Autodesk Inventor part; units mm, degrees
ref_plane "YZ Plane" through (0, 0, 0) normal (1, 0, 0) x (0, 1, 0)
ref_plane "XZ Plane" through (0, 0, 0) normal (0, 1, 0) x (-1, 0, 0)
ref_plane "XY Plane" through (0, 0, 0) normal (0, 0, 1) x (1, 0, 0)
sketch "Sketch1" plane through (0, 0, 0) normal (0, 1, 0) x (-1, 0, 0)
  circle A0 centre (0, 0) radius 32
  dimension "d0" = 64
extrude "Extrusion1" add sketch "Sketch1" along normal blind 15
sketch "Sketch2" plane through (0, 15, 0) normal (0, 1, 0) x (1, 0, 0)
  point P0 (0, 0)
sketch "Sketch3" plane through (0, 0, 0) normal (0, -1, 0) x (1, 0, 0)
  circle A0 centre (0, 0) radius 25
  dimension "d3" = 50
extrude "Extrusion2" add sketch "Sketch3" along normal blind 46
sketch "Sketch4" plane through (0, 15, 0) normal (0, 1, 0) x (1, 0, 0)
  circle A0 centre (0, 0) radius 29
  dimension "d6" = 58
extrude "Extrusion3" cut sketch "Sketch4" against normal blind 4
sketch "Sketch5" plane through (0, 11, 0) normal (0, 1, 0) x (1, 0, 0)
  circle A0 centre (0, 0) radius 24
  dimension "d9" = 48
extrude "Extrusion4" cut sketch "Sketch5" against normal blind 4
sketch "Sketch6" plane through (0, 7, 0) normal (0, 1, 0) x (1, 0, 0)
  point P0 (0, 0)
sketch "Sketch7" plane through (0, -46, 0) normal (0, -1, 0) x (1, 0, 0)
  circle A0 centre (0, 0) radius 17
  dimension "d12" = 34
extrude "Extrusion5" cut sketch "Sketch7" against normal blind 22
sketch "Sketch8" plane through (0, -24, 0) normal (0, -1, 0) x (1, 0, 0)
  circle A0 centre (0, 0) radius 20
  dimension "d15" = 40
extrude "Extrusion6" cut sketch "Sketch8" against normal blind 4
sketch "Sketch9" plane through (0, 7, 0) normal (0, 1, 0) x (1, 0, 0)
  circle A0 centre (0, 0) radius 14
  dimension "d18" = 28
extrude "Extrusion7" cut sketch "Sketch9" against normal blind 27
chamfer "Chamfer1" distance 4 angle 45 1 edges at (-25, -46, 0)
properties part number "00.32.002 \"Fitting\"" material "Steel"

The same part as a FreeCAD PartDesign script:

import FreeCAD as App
import Part
import Sketcher


def edges_at(feature, points):
    """Names of the edges that pass closest to the given points."""
    edges = feature.Shape.Edges
    near = lambda p: min(range(len(edges)), key=lambda i: edges[i].distToShape(Part.Vertex(*p))[0])
    return sorted({f"Edge{near(p) + 1}" for p in points})

doc = App.newDocument("Part")
body = doc.addObject("PartDesign::Body", "Body")

sketch1 = body.newObject("Sketcher::SketchObject", "Sketch")
sketch1.AttachmentSupport = (doc.getObject("XZ_Plane"), [""])
sketch1.MapMode = "FlatFace"
sketch1.addGeometry(Part.Circle(App.Vector(0, 0, 0), App.Vector(0, 0, 1), 32), False)
sketch1.addConstraint([
    Sketcher.Constraint("Coincident", 0, 3, -1, 1),
    Sketcher.Constraint("Diameter", 0, 64.0),
])
pad1 = body.newObject("PartDesign::Pad", "Pad")
pad1.Profile = sketch1
pad1.Length = 15
pad1.Reversed = True

sketch2 = body.newObject("Sketcher::SketchObject", "Sketch001")
sketch2.AttachmentSupport = (doc.getObject("XZ_Plane"), [""])
sketch2.MapMode = "FlatFace"
sketch2.addGeometry(Part.Circle(App.Vector(0, 0, 0), App.Vector(0, 0, 1), 25), False)
sketch2.addConstraint([
    Sketcher.Constraint("Coincident", 0, 3, -1, 1),
    Sketcher.Constraint("Diameter", 0, 50.0),
])
pad2 = body.newObject("PartDesign::Pad", "Pad001")
pad2.Profile = sketch2
pad2.Length = 46

sketch3 = body.newObject("Sketcher::SketchObject", "Sketch002")
sketch3.AttachmentSupport = (doc.getObject("XZ_Plane"), [""])
sketch3.MapMode = "FlatFace"
sketch3.AttachmentOffset = App.Placement(App.Vector(0, 0, -15), App.Rotation())
sketch3.addGeometry(Part.Circle(App.Vector(0, 0, 0), App.Vector(0, 0, 1), 29), False)
sketch3.addConstraint([
    Sketcher.Constraint("Coincident", 0, 3, -1, 1),
    Sketcher.Constraint("Diameter", 0, 58.0),
])
pocket1 = body.newObject("PartDesign::Pocket", "Pocket")
pocket1.Profile = sketch3
pocket1.Length = 4
pocket1.Reversed = True

sketch4 = body.newObject("Sketcher::SketchObject", "Sketch003")
sketch4.AttachmentSupport = (doc.getObject("XZ_Plane"), [""])
sketch4.MapMode = "FlatFace"
sketch4.AttachmentOffset = App.Placement(App.Vector(0, 0, -11), App.Rotation())
sketch4.addGeometry(Part.Circle(App.Vector(0, 0, 0), App.Vector(0, 0, 1), 24), False)
sketch4.addConstraint([
    Sketcher.Constraint("Coincident", 0, 3, -1, 1),
    Sketcher.Constraint("Diameter", 0, 48.0),
])
pocket2 = body.newObject("PartDesign::Pocket", "Pocket001")
pocket2.Profile = sketch4
pocket2.Length = 4
pocket2.Reversed = True

sketch5 = body.newObject("Sketcher::SketchObject", "Sketch004")
sketch5.AttachmentSupport = (doc.getObject("XZ_Plane"), [""])
sketch5.MapMode = "FlatFace"
sketch5.AttachmentOffset = App.Placement(App.Vector(0, 0, 46), App.Rotation())
sketch5.addGeometry(Part.Circle(App.Vector(0, 0, 0), App.Vector(0, 0, 1), 17), False)
sketch5.addConstraint([
    Sketcher.Constraint("Coincident", 0, 3, -1, 1),
    Sketcher.Constraint("Diameter", 0, 34.0),
])
pocket3 = body.newObject("PartDesign::Pocket", "Pocket002")
pocket3.Profile = sketch5
pocket3.Length = 22

sketch6 = body.newObject("Sketcher::SketchObject", "Sketch005")
sketch6.AttachmentSupport = (doc.getObject("XZ_Plane"), [""])
sketch6.MapMode = "FlatFace"
sketch6.AttachmentOffset = App.Placement(App.Vector(0, 0, 24), App.Rotation())
sketch6.addGeometry(Part.Circle(App.Vector(0, 0, 0), App.Vector(0, 0, 1), 20), False)
sketch6.addConstraint([
    Sketcher.Constraint("Coincident", 0, 3, -1, 1),
    Sketcher.Constraint("Diameter", 0, 40.0),
])
pocket4 = body.newObject("PartDesign::Pocket", "Pocket003")
pocket4.Profile = sketch6
pocket4.Length = 4

sketch7 = body.newObject("Sketcher::SketchObject", "Sketch006")
sketch7.AttachmentSupport = (doc.getObject("XZ_Plane"), [""])
sketch7.MapMode = "FlatFace"
sketch7.AttachmentOffset = App.Placement(App.Vector(0, 0, -7), App.Rotation())
sketch7.addGeometry(Part.Circle(App.Vector(0, 0, 0), App.Vector(0, 0, 1), 14), False)
sketch7.addConstraint([
    Sketcher.Constraint("Coincident", 0, 3, -1, 1),
    Sketcher.Constraint("Diameter", 0, 28.0),
])
pocket5 = body.newObject("PartDesign::Pocket", "Pocket004")
pocket5.Profile = sketch7
pocket5.Length = 27
pocket5.Reversed = True
doc.recompute()

chamfer = body.newObject("PartDesign::Chamfer", "Chamfer")
chamfer.Base = (pocket5, edges_at(pocket5, [(-25, -46, 0)]))
chamfer.Size = 4

doc.recompute()
